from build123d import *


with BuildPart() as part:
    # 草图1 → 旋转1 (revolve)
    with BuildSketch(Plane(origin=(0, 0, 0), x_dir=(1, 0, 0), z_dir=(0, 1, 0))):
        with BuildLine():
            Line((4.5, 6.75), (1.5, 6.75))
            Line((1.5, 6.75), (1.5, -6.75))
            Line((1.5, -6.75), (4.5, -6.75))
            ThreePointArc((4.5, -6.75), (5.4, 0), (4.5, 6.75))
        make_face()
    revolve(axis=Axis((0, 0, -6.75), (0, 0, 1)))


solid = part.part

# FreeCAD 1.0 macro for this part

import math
import FreeCAD as App
import Part
import Sketcher

V = App.Vector
Q = App.Units.Quantity

doc = App.newDocument("Part")
body = doc.addObject("PartDesign::Body", "Body")

sketch1 = body.newObject("Sketcher::SketchObject", "Sketch")
sketch1.AttachmentSupport = (doc.getObject("XZ_Plane"), [""])
sketch1.MapMode = "FlatFace"
sketch1.addGeometry(Part.LineSegment(V(4.5, -6.75, 0), V(1.5, -6.75, 0)), False)
sketch1.addGeometry(Part.LineSegment(V(1.5, -6.75, 0), V(1.5, 6.75, 0)), False)
sketch1.addGeometry(Part.LineSegment(V(1.5, 6.75, 0), V(4.5, 6.75, 0)), False)
sketch1.addGeometry(Part.ArcOfCircle(Part.Circle(V(-20.3625, 0, 0), V(0, 0, 1), 25.7625), math.radians(-15.189287), math.radians(15.189287)), False)
sketch1.addConstraint(Sketcher.Constraint("Coincident", 0, 2, 1, 1))
sketch1.addConstraint(Sketcher.Constraint("Coincident", 1, 2, 2, 1))
sketch1.addConstraint(Sketcher.Constraint("Coincident", 2, 2, 3, 2))
sketch1.addConstraint(Sketcher.Constraint("Coincident", 3, 1, 0, 1))
sketch1.addConstraint(Sketcher.Constraint("Horizontal", 0))
sketch1.addConstraint(Sketcher.Constraint("Vertical", 1))
sketch1.addConstraint(Sketcher.Constraint("Horizontal", 2))
sketch1.addConstraint(Sketcher.Constraint("Symmetric", 2, 2, 3, 1, -1))
sketch1.addConstraint(Sketcher.Constraint("DistanceX", 0, 2, 0, 1, Q("3 mm")))
sketch1.addConstraint(Sketcher.Constraint("DistanceY", 1, 1, 1, 2, Q("13.5 mm")))
sketch1.addConstraint(Sketcher.Constraint("DistanceX", -1, 1, 0, 2, Q("1.5 mm")))
sketch1.addConstraint(Sketcher.Constraint("Radius", 3, Q("25.7625 mm")))
revolution = body.newObject("PartDesign::Revolution", "Revolution")
revolution.Profile = sketch1
revolution.ReferenceAxis = (sketch1, ["V_Axis"])
revolution.Angle = 360

doc.recompute()
